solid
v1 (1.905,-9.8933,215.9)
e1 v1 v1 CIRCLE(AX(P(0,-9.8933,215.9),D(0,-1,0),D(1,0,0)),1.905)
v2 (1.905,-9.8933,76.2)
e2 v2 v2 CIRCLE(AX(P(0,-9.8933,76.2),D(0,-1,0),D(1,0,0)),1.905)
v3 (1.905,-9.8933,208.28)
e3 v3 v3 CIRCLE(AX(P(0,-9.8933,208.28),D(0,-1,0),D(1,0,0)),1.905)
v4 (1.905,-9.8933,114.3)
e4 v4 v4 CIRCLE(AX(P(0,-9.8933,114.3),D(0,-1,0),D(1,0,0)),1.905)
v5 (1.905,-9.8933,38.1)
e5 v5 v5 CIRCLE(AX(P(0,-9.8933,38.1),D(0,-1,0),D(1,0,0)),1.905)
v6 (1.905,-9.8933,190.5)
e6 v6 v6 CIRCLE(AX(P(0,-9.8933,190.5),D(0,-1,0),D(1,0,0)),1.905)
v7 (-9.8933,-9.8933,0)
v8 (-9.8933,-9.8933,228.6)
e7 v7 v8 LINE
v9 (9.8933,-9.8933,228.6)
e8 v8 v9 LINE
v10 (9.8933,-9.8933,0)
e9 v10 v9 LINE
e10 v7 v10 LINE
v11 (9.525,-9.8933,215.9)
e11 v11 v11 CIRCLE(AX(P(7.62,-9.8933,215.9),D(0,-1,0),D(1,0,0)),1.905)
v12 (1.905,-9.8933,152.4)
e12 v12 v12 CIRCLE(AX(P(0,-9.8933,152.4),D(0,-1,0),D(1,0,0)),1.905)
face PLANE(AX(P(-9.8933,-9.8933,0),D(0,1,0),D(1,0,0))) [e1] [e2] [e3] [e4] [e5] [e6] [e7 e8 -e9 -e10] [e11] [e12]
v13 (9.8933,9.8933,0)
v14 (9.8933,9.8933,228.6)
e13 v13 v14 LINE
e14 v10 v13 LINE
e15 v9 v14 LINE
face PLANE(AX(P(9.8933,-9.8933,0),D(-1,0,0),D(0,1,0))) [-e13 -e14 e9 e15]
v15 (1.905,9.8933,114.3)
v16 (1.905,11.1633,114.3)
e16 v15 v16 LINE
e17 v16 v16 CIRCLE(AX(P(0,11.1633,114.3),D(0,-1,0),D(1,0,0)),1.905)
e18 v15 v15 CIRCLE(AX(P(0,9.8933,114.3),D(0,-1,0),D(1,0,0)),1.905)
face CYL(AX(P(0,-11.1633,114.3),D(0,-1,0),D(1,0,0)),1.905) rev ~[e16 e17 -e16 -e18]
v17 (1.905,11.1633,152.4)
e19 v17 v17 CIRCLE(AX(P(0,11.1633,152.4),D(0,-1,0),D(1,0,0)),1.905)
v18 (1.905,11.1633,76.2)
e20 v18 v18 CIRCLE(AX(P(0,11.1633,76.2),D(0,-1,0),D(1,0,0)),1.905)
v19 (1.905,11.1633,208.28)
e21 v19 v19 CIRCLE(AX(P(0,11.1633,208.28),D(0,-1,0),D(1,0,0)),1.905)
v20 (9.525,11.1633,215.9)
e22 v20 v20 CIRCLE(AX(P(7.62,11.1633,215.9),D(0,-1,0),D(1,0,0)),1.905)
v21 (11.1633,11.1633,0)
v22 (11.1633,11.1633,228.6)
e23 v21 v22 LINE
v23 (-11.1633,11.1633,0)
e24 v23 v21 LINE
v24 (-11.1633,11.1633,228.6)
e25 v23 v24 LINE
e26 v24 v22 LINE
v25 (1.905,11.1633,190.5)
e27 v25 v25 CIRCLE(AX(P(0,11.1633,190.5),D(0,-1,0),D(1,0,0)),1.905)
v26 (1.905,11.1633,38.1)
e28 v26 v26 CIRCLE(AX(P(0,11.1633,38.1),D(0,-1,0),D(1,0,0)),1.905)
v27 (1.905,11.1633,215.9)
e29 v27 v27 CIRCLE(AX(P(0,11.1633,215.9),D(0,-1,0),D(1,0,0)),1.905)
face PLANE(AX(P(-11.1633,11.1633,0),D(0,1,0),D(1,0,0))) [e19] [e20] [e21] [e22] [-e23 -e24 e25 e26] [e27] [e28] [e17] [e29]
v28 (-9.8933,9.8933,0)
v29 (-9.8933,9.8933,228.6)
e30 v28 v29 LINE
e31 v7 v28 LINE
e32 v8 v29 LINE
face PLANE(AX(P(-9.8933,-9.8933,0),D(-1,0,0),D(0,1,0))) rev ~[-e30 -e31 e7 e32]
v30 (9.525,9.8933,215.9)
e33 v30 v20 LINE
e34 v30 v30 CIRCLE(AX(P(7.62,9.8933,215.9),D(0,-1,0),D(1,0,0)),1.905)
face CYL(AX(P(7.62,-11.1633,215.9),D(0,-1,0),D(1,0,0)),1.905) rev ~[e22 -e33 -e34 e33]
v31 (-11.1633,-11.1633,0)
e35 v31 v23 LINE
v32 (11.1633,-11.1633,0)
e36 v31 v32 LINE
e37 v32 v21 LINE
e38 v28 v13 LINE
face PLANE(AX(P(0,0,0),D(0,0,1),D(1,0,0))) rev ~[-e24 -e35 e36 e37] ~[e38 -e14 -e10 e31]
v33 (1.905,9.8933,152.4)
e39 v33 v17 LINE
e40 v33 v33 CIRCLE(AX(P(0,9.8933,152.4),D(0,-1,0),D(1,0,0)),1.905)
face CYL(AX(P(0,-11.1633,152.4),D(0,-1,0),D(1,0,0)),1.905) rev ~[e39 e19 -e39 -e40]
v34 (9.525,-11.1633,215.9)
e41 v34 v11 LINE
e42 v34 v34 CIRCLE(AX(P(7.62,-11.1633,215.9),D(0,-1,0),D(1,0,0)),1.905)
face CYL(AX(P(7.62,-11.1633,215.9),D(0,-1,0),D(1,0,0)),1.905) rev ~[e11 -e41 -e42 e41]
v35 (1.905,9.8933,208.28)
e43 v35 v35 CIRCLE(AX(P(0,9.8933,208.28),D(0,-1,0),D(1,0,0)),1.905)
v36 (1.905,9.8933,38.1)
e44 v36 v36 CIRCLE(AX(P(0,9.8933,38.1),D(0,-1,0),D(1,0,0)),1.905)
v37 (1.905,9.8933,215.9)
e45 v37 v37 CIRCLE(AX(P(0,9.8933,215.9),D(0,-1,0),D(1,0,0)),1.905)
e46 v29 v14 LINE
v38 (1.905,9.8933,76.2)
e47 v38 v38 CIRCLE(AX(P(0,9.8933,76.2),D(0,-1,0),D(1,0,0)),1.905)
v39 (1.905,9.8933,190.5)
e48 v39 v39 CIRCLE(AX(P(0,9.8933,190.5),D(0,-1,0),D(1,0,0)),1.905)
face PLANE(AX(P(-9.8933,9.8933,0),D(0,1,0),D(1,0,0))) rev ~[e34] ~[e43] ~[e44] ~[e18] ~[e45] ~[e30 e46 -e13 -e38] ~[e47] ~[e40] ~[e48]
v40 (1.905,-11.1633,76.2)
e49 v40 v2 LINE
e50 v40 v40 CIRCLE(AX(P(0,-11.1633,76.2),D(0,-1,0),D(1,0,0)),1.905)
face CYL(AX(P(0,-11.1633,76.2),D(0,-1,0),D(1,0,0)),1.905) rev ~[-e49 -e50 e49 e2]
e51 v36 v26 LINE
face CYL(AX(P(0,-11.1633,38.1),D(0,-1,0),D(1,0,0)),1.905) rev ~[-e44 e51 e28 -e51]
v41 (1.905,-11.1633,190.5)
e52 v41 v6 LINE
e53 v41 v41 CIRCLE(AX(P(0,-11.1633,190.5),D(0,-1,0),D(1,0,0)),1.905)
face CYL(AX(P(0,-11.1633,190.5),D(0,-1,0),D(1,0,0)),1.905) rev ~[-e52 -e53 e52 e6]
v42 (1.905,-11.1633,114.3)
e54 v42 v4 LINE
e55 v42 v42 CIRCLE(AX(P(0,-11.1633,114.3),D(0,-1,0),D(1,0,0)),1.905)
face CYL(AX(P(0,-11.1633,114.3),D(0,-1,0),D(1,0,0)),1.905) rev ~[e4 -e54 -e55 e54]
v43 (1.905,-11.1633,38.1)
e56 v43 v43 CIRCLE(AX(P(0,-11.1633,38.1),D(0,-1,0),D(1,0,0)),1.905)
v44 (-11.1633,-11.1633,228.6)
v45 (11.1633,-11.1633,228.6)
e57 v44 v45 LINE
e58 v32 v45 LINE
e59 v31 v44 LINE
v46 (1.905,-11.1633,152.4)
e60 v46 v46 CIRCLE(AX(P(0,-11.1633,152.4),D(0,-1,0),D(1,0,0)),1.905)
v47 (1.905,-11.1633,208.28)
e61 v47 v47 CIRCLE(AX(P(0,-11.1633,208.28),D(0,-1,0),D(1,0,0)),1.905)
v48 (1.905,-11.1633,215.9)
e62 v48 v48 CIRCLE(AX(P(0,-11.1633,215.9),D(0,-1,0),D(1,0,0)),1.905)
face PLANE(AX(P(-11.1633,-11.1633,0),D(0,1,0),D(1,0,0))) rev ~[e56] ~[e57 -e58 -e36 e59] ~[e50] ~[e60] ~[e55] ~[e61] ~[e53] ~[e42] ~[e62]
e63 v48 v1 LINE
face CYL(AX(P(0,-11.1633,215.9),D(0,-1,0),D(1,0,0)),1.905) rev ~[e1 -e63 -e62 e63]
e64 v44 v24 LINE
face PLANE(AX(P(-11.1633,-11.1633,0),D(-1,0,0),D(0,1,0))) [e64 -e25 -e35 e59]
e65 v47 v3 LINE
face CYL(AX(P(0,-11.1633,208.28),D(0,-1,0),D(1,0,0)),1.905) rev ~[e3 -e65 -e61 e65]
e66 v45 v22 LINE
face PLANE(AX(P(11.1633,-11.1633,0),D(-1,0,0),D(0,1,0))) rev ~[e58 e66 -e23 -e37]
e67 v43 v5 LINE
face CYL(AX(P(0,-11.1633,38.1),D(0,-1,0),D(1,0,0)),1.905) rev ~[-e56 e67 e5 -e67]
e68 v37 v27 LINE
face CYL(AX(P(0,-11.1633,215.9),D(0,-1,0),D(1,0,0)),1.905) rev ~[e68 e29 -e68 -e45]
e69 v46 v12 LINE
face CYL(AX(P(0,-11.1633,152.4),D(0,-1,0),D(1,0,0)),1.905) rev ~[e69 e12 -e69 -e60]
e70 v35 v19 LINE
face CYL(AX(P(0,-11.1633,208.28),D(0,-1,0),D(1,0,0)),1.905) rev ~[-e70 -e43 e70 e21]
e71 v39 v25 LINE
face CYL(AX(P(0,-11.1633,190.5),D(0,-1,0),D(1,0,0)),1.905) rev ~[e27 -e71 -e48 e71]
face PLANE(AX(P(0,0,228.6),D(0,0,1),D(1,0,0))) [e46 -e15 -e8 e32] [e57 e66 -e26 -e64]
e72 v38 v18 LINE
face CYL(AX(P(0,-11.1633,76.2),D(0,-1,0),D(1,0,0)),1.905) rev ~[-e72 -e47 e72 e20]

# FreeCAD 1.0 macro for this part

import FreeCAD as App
import Part
import Sketcher
from FreeCAD import Vector
Q = App.Units.Quantity

doc = App.newDocument("Part")
params = doc.addObject("Spreadsheet::Sheet", "Params")
for row, (alias, value) in enumerate([
    ("sketch1_width", "0.879 in"),
    ("sketch1_width2", "0.779 in"),
    ("pad1_length", "9 in"),
    ("sketch2_diameter", "0.15 in"),
    ("sketch3_diameter", "0.15 in"),
], start=1):
    params.set(f"A{row}", alias)
    params.set(f"B{row}", "=" + value)
    params.setAlias(f"B{row}", alias)

body = doc.addObject("PartDesign::Body", "Body")

sketch1 = doc.addObject("Sketcher::SketchObject", "Sketch")
body.addObject(sketch1)
sketch1.AttachmentSupport = (doc.XY_Plane, [""])
sketch1.MapMode = "FlatFace"
sketch1.addGeometry(Part.LineSegment(Vector(-11.1633, 11.1633, 0), Vector(-11.1633, -11.1633, 0)), False)
sketch1.addGeometry(Part.LineSegment(Vector(-11.1633, -11.1633, 0), Vector(11.1633, -11.1633, 0)), False)
sketch1.addGeometry(Part.LineSegment(Vector(11.1633, -11.1633, 0), Vector(11.1633, 11.1633, 0)), False)
sketch1.addGeometry(Part.LineSegment(Vector(11.1633, 11.1633, 0), Vector(-11.1633, 11.1633, 0)), False)
sketch1.addGeometry(Part.LineSegment(Vector(9.8933, -9.8933, 0), Vector(-9.8933, -9.8933, 0)), False)
sketch1.addGeometry(Part.LineSegment(Vector(-9.8933, -9.8933, 0), Vector(-9.8933, 9.8933, 0)), False)
sketch1.addGeometry(Part.LineSegment(Vector(-9.8933, 9.8933, 0), Vector(9.8933, 9.8933, 0)), False)
sketch1.addGeometry(Part.LineSegment(Vector(9.8933, 9.8933, 0), Vector(9.8933, -9.8933, 0)), False)
sketch1.addConstraint(Sketcher.Constraint("Coincident", 0, 2, 1, 1))
sketch1.addConstraint(Sketcher.Constraint("Coincident", 1, 2, 2, 1))
sketch1.addConstraint(Sketcher.Constraint("Coincident", 2, 2, 3, 1))
sketch1.addConstraint(Sketcher.Constraint("Coincident", 3, 2, 0, 1))
sketch1.addConstraint(Sketcher.Constraint("Coincident", 4, 2, 5, 1))
sketch1.addConstraint(Sketcher.Constraint("Coincident", 5, 2, 6, 1))
sketch1.addConstraint(Sketcher.Constraint("Coincident", 6, 2, 7, 1))
sketch1.addConstraint(Sketcher.Constraint("Coincident", 7, 2, 4, 1))
sketch1.addConstraint(Sketcher.Constraint("Vertical", 0))
sketch1.addConstraint(Sketcher.Constraint("Horizontal", 1))
sketch1.addConstraint(Sketcher.Constraint("Vertical", 2))
sketch1.addConstraint(Sketcher.Constraint("Horizontal", 3))
sketch1.addConstraint(Sketcher.Constraint("Horizontal", 4))
sketch1.addConstraint(Sketcher.Constraint("Vertical", 5))
sketch1.addConstraint(Sketcher.Constraint("Horizontal", 6))
sketch1.addConstraint(Sketcher.Constraint("Vertical", 7))
sketch1.addConstraint(Sketcher.Constraint("Symmetric", 0, 2, 2, 2, -1, 1))
sketch1.addConstraint(Sketcher.Constraint("Symmetric", 4, 2, 6, 2, -1, 1))
sketch1.addConstraint(Sketcher.Constraint("Equal", 3, 0))
sketch1.addConstraint(Sketcher.Constraint("Equal", 6, 5))
sketch1.addConstraint(Sketcher.Constraint("DistanceX", 1, 1, 1, 2, Q("0.879 in")))
sketch1.addConstraint(Sketcher.Constraint("DistanceX", 4, 2, 4, 1, Q("0.779 in")))
sketch1.setExpression("Constraints[20]", "Params.sketch1_width")
sketch1.setExpression("Constraints[21]", "Params.sketch1_width2")
pad1 = doc.addObject("PartDesign::Pad", "Pad")
body.addObject(pad1)
pad1.Profile = sketch1
pad1.setExpression("Length", "Params.pad1_length")

sketch2 = doc.addObject("Sketcher::SketchObject", "Sketch001")
body.addObject(sketch2)
sketch2.AttachmentSupport = (doc.XZ_Plane, [""])
sketch2.MapMode = "FlatFace"
sketch2.AttachmentOffset = App.Placement(Vector(0, 0, 0.4395 * 25.4), App.Rotation())
sketch2.addGeometry(Part.Circle(Vector(0, 38.1, 0), Vector(0, 0, 1), 1.905), False)
sketch2.addGeometry(Part.Circle(Vector(0, 76.2, 0), Vector(0, 0, 1), 1.905), False)
sketch2.addGeometry(Part.Circle(Vector(0, 114.3, 0), Vector(0, 0, 1), 1.905), False)
sketch2.addGeometry(Part.Circle(Vector(0, 152.4, 0), Vector(0, 0, 1), 1.905), False)
sketch2.addGeometry(Part.Circle(Vector(0, 190.5, 0), Vector(0, 0, 1), 1.905), False)
sketch2.addConstraint(Sketcher.Constraint("Equal", 0, 1))
sketch2.addConstraint(Sketcher.Constraint("Equal", 1, 2))
sketch2.addConstraint(Sketcher.Constraint("Equal", 2, 3))
sketch2.addConstraint(Sketcher.Constraint("Equal", 3, 4))
sketch2.addConstraint(Sketcher.Constraint("PointOnObject", 0, 3, -2))
sketch2.addConstraint(Sketcher.Constraint("PointOnObject", 1, 3, -2))
sketch2.addConstraint(Sketcher.Constraint("PointOnObject", 2, 3, -2))
sketch2.addConstraint(Sketcher.Constraint("PointOnObject", 3, 3, -2))
sketch2.addConstraint(Sketcher.Constraint("PointOnObject", 4, 3, -2))
sketch2.addConstraint(Sketcher.Constraint("Diameter", 0, Q("0.15 in")))
sketch2.addConstraint(Sketcher.Constraint("DistanceY", -1, 1, 1, 3, Q("3 in")))
sketch2.addConstraint(Sketcher.Constraint("DistanceY", -1, 1, 3, 3, Q("6 in")))
sketch2.addConstraint(Sketcher.Constraint("DistanceY", 0, 3, 2, 3, Q("3 in")))
sketch2.addConstraint(Sketcher.Constraint("DistanceY", 2, 3, 4, 3, Q("3 in")))
sketch2.addConstraint(Sketcher.Constraint("DistanceY", -1, 1, 0, 3, Q("1.5 in")))
sketch2.setExpression("Constraints[9]", "Params.sketch2_diameter")
pocket1 = doc.addObject("PartDesign::Pocket", "Pocket")
body.addObject(pocket1)
pocket1.Profile = sketch2
pocket1.Type = "ThroughAll"

sketch3 = doc.addObject("Sketcher::SketchObject", "Sketch002")
body.addObject(sketch3)
sketch3.AttachmentSupport = (doc.XZ_Plane, [""])
sketch3.MapMode = "FlatFace"
sketch3.AttachmentOffset = App.Placement(Vector(0, 0, 0.4395 * 25.4), App.Rotation())
sketch3.addGeometry(Part.Circle(Vector(0, 215.9, 0), Vector(0, 0, 1), 1.905), False)
sketch3.addGeometry(Part.Circle(Vector(7.62, 215.9, 0), Vector(0, 0, 1), 1.905), False)
sketch3.addGeometry(Part.Circle(Vector(0, 208.28, 0), Vector(0, 0, 1), 1.905), False)
sketch3.addConstraint(Sketcher.Constraint("Equal", 0, 1))
sketch3.addConstraint(Sketcher.Constraint("Equal", 1, 2))
sketch3.addConstraint(Sketcher.Constraint("PointOnObject", 0, 3, -2))
sketch3.addConstraint(Sketcher.Constraint("PointOnObject", 2, 3, -2))
sketch3.addConstraint(Sketcher.Constraint("Horizontal", 0, 3, 1, 3))
sketch3.addConstraint(Sketcher.Constraint("Diameter", 0, Q("0.15 in")))
sketch3.addConstraint(Sketcher.Constraint("DistanceY", -1, 1, 0, 3, Q("8.5 in")))
sketch3.addConstraint(Sketcher.Constraint("DistanceX", -1, 1, 1, 3, Q("0.3 in")))
sketch3.addConstraint(Sketcher.Constraint("DistanceY", -1, 1, 2, 3, Q("8.2 in")))
sketch3.setExpression("Constraints[5]", "Params.sketch3_diameter")
pocket2 = doc.addObject("PartDesign::Pocket", "Pocket001")
body.addObject(pocket2)
pocket2.Profile = sketch3
pocket2.Type = "ThroughAll"

doc.recompute()
